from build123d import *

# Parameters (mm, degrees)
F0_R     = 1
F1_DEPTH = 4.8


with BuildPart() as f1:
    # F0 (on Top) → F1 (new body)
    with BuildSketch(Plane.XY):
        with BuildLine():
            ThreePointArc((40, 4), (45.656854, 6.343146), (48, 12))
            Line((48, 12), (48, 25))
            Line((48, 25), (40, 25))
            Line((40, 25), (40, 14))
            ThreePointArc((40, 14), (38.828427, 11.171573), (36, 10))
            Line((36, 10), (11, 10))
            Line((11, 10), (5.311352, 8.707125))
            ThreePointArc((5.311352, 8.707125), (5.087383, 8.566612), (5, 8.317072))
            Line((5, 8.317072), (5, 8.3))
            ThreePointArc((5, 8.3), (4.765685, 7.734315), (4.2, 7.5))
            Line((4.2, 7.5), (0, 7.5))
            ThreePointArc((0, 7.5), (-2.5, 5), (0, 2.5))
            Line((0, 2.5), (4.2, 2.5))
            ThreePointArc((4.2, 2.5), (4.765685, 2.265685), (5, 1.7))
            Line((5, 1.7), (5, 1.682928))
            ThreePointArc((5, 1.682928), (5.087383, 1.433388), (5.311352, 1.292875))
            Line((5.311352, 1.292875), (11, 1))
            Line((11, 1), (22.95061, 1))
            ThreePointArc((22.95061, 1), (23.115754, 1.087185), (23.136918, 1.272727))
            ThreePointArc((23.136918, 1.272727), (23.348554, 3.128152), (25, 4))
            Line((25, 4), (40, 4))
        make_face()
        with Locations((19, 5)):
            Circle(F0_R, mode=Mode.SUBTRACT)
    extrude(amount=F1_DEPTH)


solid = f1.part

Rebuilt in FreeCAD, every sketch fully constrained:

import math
import FreeCAD as App
import Part
import Sketcher
from FreeCAD import Vector

doc = App.newDocument("Part")
params = doc.addObject("Spreadsheet::Sheet", "Params")
for row, (alias, value) in enumerate([
    ("sketch1_diameter", "2 mm"),
    ("sketch1_radius", "8.000001 mm"),
    ("sketch1_radius2", "4 mm"),
    ("sketch1_radius3", "2 mm"),
    ("sketch1_radius4", "0.400001 mm"),
    ("pad1_length", "4.8 mm"),
], start=1):
    params.set(f"A{row}", alias)
    params.set(f"B{row}", "=" + value)
    params.setAlias(f"B{row}", alias)

body = doc.addObject("PartDesign::Body", "Body")

sketch1 = doc.addObject("Sketcher::SketchObject", "Sketch")
body.addObject(sketch1)
sketch1.AttachmentSupport = (doc.XY_Plane, [""])
sketch1.MapMode = "FlatFace"
sketch1.addGeometry([
    Part.ArcOfCircle(Part.Circle(Vector(40, 12, 0), Vector(0, 0, 1), 8), math.radians(-90), math.radians(0)),
    Part.LineSegment(Vector(48, 12, 0), Vector(48, 25, 0)),
    Part.LineSegment(Vector(48, 25, 0), Vector(40, 25, 0)),
    Part.LineSegment(Vector(40, 25, 0), Vector(40, 14, 0)),
    Part.ArcOfCircle(Part.Circle(Vector(36, 14, 0), Vector(0, 0, 1), 4), math.radians(-90), math.radians(0)),
    Part.LineSegment(Vector(36, 10, 0), Vector(11, 10, 0)),
    Part.LineSegment(Vector(11, 10, 0), Vector(5.311, 8.707, 0)),
    Part.ArcOfCircle(Part.Circle(Vector(5.4, 8.317, 0), Vector(0, 0, 1), 0.4), math.radians(103), math.radians(180)),
    Part.LineSegment(Vector(5, 8.317, 0), Vector(5, 8.3, 0)),
    Part.ArcOfCircle(Part.Circle(Vector(4.2, 8.3, 0), Vector(0, 0, 1), 0.8), math.radians(-90), math.radians(0)),
    Part.LineSegment(Vector(4.2, 7.5, 0), Vector(0, 7.5, 0)),
    Part.ArcOfCircle(Part.Circle(Vector(0, 5, 0), Vector(0, 0, 1), 2.5), math.radians(90), math.radians(270)),
    Part.LineSegment(Vector(0, 2.5, 0), Vector(4.2, 2.5, 0)),
    Part.ArcOfCircle(Part.Circle(Vector(4.2, 1.7, 0), Vector(0, 0, 1), 0.8), math.radians(0), math.radians(90)),
    Part.LineSegment(Vector(5, 1.7, 0), Vector(5, 1.683, 0)),
    Part.ArcOfCircle(Part.Circle(Vector(5.4, 1.683, 0), Vector(0, 0, 1), 0.4), math.radians(-180), math.radians(-103)),
    Part.LineSegment(Vector(5.311, 1.293, 0), Vector(11, 1, 0)),
    Part.LineSegment(Vector(11, 1, 0), Vector(22.951, 1, 0)),
    Part.ArcOfCircle(Part.Circle(Vector(22.951, 1.2, 0), Vector(0, 0, 1), 0.2), math.radians(-90), math.radians(21)),
    Part.ArcOfCircle(Part.Circle(Vector(25, 2, 0), Vector(0, 0, 1), 2), math.radians(90), math.radians(201)),
    Part.LineSegment(Vector(25, 4, 0), Vector(40, 4, 0)),
    Part.Circle(Vector(19, 5, 0), Vector(0, 0, 1), 1),
], False)
sketch1.addConstraint([
    Sketcher.Constraint("Tangent", 0, 2, 1, 1),
    Sketcher.Constraint("Coincident", 1, 2, 2, 1),
    Sketcher.Constraint("Coincident", 2, 2, 3, 1),
    Sketcher.Constraint("Tangent", 3, 2, 4, 2),
    Sketcher.Constraint("Tangent", 4, 1, 5, 1),
    Sketcher.Constraint("Coincident", 5, 2, 6, 1),
    Sketcher.Constraint("Tangent", 6, 2, 7, 1),
    Sketcher.Constraint("Coincident", 7, 2, 8, 1),
    Sketcher.Constraint("Tangent", 8, 2, 9, 2),
    Sketcher.Constraint("Tangent", 9, 1, 10, 1),
    Sketcher.Constraint("Tangent", 10, 2, 11, 1),
    Sketcher.Constraint("Tangent", 11, 2, 12, 1),
    Sketcher.Constraint("Tangent", 12, 2, 13, 2),
    Sketcher.Constraint("Tangent", 13, 1, 14, 1),
    Sketcher.Constraint("Coincident", 14, 2, 15, 1),
    Sketcher.Constraint("Coincident", 15, 2, 16, 1),
    Sketcher.Constraint("Coincident", 16, 2, 17, 1),
    Sketcher.Constraint("Coincident", 17, 2, 18, 1),
    Sketcher.Constraint("Coincident", 18, 2, 19, 2),
    Sketcher.Constraint("Tangent", 19, 1, 20, 1),
    Sketcher.Constraint("Tangent", 20, 2, 0, 1),
    Sketcher.Constraint("Vertical", 1),
    Sketcher.Constraint("Horizontal", 2),
    Sketcher.Constraint("Vertical", 3),
    Sketcher.Constraint("Horizontal", 5),
    Sketcher.Constraint("Vertical", 8),
    Sketcher.Constraint("Horizontal", 10),
    Sketcher.Constraint("Horizontal", 12),
    Sketcher.Constraint("Vertical", 14),
    Sketcher.Constraint("Horizontal", 17),
    Sketcher.Constraint("Horizontal", 20),
    Sketcher.Constraint("Equal", 9, 13),
    Sketcher.Constraint("Equal", 7, 15),
    Sketcher.Constraint("PointOnObject", 11, 3, -2),
    Sketcher.Constraint("Horizontal", 11, 3, 21, 3),
    Sketcher.Constraint("Horizontal", 15, 3, 14, 2),
    Sketcher.Constraint("Vertical", 9, 3, 13, 3),
    Sketcher.Constraint("Vertical", 0, 3, 2, 2),
    Sketcher.Constraint("Vertical", 6, 2, 15, 2),
    Sketcher.Constraint("Vertical", 5, 2, 16, 2),
    Sketcher.Constraint("Vertical", 18, 3, 17, 2),
    Sketcher.Constraint("Equal", 8, 14),
    Sketcher.Constraint("Diameter", 21, 2.0),
    Sketcher.Constraint("Radius", 0, 8.000001),
    Sketcher.Constraint("Radius", 4, 4.0),
    Sketcher.Constraint("Radius", 19, 2.0),
    Sketcher.Constraint("Radius", 7, 0.400001),
    Sketcher.Constraint("Radius", 9, 0.800001),
    Sketcher.Constraint("Radius", 11, 2.5),
    Sketcher.Constraint("Radius", 18, 0.2),
    Sketcher.Constraint("DistanceX", 5, 2, 5, 1, 25.0),
    Sketcher.Constraint("DistanceX", 20, 1, 20, 2, 15.0),
    Sketcher.Constraint("DistanceY", 1, 1, 1, 2, 13.0),
    Sketcher.Constraint("DistanceY", 3, 2, 3, 1, 11.0),
    Sketcher.Constraint("DistanceX", 10, 2, 10, 1, 4.2),
    Sketcher.Constraint("DistanceX", -1, 1, 0, 3, 39.999999),
    Sketcher.Constraint("DistanceY", -1, 1, 0, 3, 12.000001),
    Sketcher.Constraint("DistanceY", -1, 1, 11, 3, 5.0),
    Sketcher.Constraint("DistanceX", -1, 1, 21, 3, 19.0),
    Sketcher.Constraint("DistanceY", -1, 1, 16, 2, 1.0),
    Sketcher.Constraint("DistanceY", 8, 2, 8, 1, 0.017072),
    Sketcher.Constraint("DistanceY", -1, 1, 7, 3, 8.317071),
    Sketcher.Constraint("DistanceX", 18, 3, 18, 2, 0.186309),
])
sketch1.setExpression("Constraints[42]", "Params.sketch1_diameter")
sketch1.setExpression("Constraints[43]", "Params.sketch1_radius")
sketch1.setExpression("Constraints[44]", "Params.sketch1_radius2")
sketch1.setExpression("Constraints[45]", "Params.sketch1_radius3")
sketch1.setExpression("Constraints[46]", "Params.sketch1_radius4")
pad1 = doc.addObject("PartDesign::Pad", "Pad")
body.addObject(pad1)
pad1.Profile = sketch1
pad1.setExpression("Length", "Params.pad1_length")

doc.recompute()
